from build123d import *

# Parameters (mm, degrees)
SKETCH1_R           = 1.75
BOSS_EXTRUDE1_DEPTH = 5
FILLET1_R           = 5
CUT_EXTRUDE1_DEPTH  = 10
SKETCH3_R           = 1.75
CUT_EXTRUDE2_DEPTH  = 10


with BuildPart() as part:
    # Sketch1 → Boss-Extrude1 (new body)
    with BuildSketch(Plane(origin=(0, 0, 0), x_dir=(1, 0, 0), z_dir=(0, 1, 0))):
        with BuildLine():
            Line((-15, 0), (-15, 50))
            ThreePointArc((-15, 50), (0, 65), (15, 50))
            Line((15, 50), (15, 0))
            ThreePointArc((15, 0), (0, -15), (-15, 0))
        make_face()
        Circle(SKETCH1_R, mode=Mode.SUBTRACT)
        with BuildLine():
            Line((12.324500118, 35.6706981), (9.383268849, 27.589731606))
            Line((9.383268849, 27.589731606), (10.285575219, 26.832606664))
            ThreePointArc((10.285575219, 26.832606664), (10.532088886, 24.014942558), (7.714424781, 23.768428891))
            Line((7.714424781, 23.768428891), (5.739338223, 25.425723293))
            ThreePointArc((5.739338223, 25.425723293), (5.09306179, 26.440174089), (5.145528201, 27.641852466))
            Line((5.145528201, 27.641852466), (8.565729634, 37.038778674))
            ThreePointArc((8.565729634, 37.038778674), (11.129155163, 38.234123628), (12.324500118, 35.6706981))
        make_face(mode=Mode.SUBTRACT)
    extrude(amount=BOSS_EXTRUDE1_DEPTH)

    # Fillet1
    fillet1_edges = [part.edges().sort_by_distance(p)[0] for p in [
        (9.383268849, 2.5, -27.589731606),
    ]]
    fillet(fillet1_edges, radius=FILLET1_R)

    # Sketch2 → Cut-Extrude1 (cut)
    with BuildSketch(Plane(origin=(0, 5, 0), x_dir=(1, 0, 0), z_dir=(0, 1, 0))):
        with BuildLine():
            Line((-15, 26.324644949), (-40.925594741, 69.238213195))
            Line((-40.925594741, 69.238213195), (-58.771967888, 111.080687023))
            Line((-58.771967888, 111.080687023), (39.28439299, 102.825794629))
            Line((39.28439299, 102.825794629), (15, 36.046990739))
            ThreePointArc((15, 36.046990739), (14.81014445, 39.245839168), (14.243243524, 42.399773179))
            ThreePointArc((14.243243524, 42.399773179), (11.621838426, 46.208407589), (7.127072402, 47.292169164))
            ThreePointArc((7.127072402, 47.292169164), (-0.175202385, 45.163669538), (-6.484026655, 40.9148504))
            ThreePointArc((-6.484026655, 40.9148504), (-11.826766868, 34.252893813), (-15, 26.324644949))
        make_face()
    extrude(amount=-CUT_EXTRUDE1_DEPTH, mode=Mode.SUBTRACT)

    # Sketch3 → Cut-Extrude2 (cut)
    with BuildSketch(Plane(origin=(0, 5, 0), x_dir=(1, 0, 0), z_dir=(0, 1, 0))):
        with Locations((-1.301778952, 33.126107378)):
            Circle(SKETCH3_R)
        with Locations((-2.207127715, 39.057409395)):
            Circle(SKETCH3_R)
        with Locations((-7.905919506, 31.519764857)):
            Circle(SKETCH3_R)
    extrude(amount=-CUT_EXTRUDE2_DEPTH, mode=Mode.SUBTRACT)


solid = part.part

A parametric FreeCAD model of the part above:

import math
import FreeCAD as App
import Part
import Sketcher
Q = App.Units.Quantity


def edges_at(feature, points):
    """Names of the edges that pass closest to the given points."""
    edges = feature.Shape.Edges
    near = lambda p: min(range(len(edges)), key=lambda i: edges[i].distToShape(Part.Vertex(*p))[0])
    return sorted({f"Edge{near(p) + 1}" for p in points})

doc = App.newDocument("Part")
body = doc.addObject("PartDesign::Body", "Body")

sketch1 = body.newObject("Sketcher::SketchObject", "Sketch")
sketch1.AttachmentSupport = (doc.getObject("XZ_Plane"), [""])
sketch1.MapMode = "FlatFace"
sketch1.addGeometry([
    Part.LineSegment(App.Vector(-15, -50, 0), App.Vector(-15, 0, 0)),
    Part.ArcOfCircle(Part.Circle(App.Vector(0, 0, 0), App.Vector(0, 0, 1), 15), math.radians(0), math.radians(180)),
    Part.LineSegment(App.Vector(15, 0, 0), App.Vector(15, -50, 0)),
    Part.ArcOfCircle(Part.Circle(App.Vector(0, -50, 0), App.Vector(0, 0, 1), 15), math.radians(180), math.radians(360)),
    Part.Circle(App.Vector(0, 0, 0), App.Vector(0, 0, 1), 1.8),
    Part.LineSegment(App.Vector(12.3, -35.7, 0), App.Vector(9.4, -27.6, 0)),
    Part.LineSegment(App.Vector(9.4, -27.6, 0), App.Vector(10.3, -26.8, 0)),
    Part.ArcOfCircle(Part.Circle(App.Vector(9, -25.3, 0), App.Vector(0, 0, 1), 2), math.radians(-50), math.radians(130)),
    Part.LineSegment(App.Vector(7.7, -23.8, 0), App.Vector(5.7, -25.4, 0)),
    Part.ArcOfCircle(Part.Circle(App.Vector(7, -27, 0), App.Vector(0, 0, 1), 2), math.radians(130), math.radians(200)),
    Part.LineSegment(App.Vector(5.1, -27.6, 0), App.Vector(8.6, -37, 0)),
    Part.ArcOfCircle(Part.Circle(App.Vector(10.4, -36.4, 0), App.Vector(0, 0, 1), 2), math.radians(-160), math.radians(20)),
], False)
sketch1.addConstraint([
    Sketcher.Constraint("Tangent", 0, 2, 1, 2),
    Sketcher.Constraint("Tangent", 1, 1, 2, 1),
    Sketcher.Constraint("Tangent", 2, 2, 3, 2),
    Sketcher.Constraint("Tangent", 3, 1, 0, 1),
    Sketcher.Constraint("Coincident", 5, 2, 6, 1),
    Sketcher.Constraint("Tangent", 6, 2, 7, 1),
    Sketcher.Constraint("Tangent", 7, 2, 8, 1),
    Sketcher.Constraint("Tangent", 8, 2, 9, 1),
    Sketcher.Constraint("Tangent", 9, 2, 10, 1),
    Sketcher.Constraint("Tangent", 10, 2, 11, 1),
    Sketcher.Constraint("Tangent", 11, 2, 5, 1),
    Sketcher.Constraint("Vertical", 0),
    Sketcher.Constraint("Vertical", 2),
    Sketcher.Constraint("Coincident", 1, 3, -1, 1),
    Sketcher.Constraint("Coincident", 4, 3, -1, 1),
    Sketcher.Constraint("Equal", 7, 9),
    Sketcher.Constraint("Equal", 9, 11),
    Sketcher.Constraint("Parallel", 6, 8),
    Sketcher.Constraint("Parallel", 5, 10),
    Sketcher.Constraint("Radius", 1, Q("15 mm")),
    Sketcher.Constraint("Radius", 7, Q("2 mm")),
    Sketcher.Constraint("Diameter", 4, Q("3.5 mm")),
    Sketcher.Constraint("DistanceY", 0, 1, 0, 2, Q("50 mm")),
    Sketcher.Constraint("Angle", 5, Q("110 deg")),
    Sketcher.Constraint("Angle", 6, Q("40 deg")),
    Sketcher.Constraint("Distance", 10, Q("10 mm")),
    Sketcher.Constraint("DistanceX", -1, 1, 7, 3, Q("9 mm")),
    Sketcher.Constraint("DistanceX", -1, 1, 11, 2, Q("12.3245 mm")),
    Sketcher.Constraint("DistanceY", 11, 2, -1, 1, Q("35.670698 mm")),
])
pad1 = body.newObject("PartDesign::Pad", "Pad")
pad1.Profile = sketch1
pad1.Length = 5
pad1.Reversed = True
doc.recompute()

fillet = body.newObject("PartDesign::Fillet", "Fillet")
fillet.Base = (pad1, edges_at(pad1, [(9.383, 2.5, -27.59)]))
fillet.Radius = 5

sketch2 = body.newObject("Sketcher::SketchObject", "Sketch001")
sketch2.AttachmentSupport = (doc.getObject("XZ_Plane"), [""])
sketch2.MapMode = "FlatFace"
sketch2.AttachmentOffset = App.Placement(App.Vector(0, 0, -5), App.Rotation())
sketch2.addGeometry([
    Part.LineSegment(App.Vector(-41, -69, 0), App.Vector(-15, -26, 0)),
    Part.ArcOfCircle(Part.Circle(App.Vector(13, -20, 0), App.Vector(0, 0, 1), 29), math.radians(-167), math.radians(-133)),
    Part.ArcOfCircle(Part.Circle(App.Vector(10, -23, 0), App.Vector(0, 0, 1), 25), math.radians(-133), math.radians(-97)),
    Part.ArcOfCircle(Part.Circle(App.Vector(8, -41, 0), App.Vector(0, 0, 1), 6), math.radians(-97), math.radians(-14)),
    Part.ArcOfCircle(Part.Circle(App.Vector(-12, -36, 0), App.Vector(0, 0, 1), 27), math.radians(-13.59), math.radians(0)),
    Part.LineSegment(App.Vector(15, -36, 0), App.Vector(39, -103, 0)),
    Part.LineSegment(App.Vector(39, -103, 0), App.Vector(-59, -111, 0)),
    Part.LineSegment(App.Vector(-59, -111, 0), App.Vector(-41, -69, 0)),
], False)
sketch2.addConstraint([
    Sketcher.Constraint("Coincident", 0, 2, 1, 1),
    Sketcher.Constraint("Tangent", 1, 2, 2, 1),
    Sketcher.Constraint("Tangent", 2, 2, 3, 1),
    Sketcher.Constraint("Tangent", 3, 2, 4, 1),
    Sketcher.Constraint("Coincident", 4, 2, 5, 1),
    Sketcher.Constraint("Coincident", 5, 2, 6, 1),
    Sketcher.Constraint("Coincident", 6, 2, 7, 1),
    Sketcher.Constraint("Coincident", 7, 2, 0, 1),
    Sketcher.Constraint("DistanceX", 0, 2, -1, 1, Q("15 mm")),
    Sketcher.Constraint("DistanceX", -1, 1, 4, 2, Q("15 mm")),
    Sketcher.Constraint("Radius", 3, Q("6.464849 mm")),
    Sketcher.Constraint("Radius", 1, Q("29.031005 mm")),
    Sketcher.Constraint("Radius", 2, Q("24.707804 mm")),
    Sketcher.Constraint("Radius", 4, Q("27.043393 mm")),
    Sketcher.Constraint("Distance", 7, Q("45.489402 mm")),
    Sketcher.Constraint("DistanceX", -1, 1, 3, 3, Q("7.959301 mm")),
    Sketcher.Constraint("DistanceY", 0, 2, 2, 3, Q("3.534699 mm")),
    Sketcher.Constraint("DistanceX", 1, 2, 2, 2, Q("13.611099 mm")),
    Sketcher.Constraint("Distance", 0, Q("50.136921 mm")),
    Sketcher.Constraint("DistanceY", 3, 3, -1, 1, Q("40.881111 mm")),
    Sketcher.Constraint("DistanceY", 4, 2, -1, 1, Q("36.046991 mm")),
    Sketcher.Constraint("DistanceX", 2, 2, 5, 2, Q("32.157321 mm")),
    Sketcher.Constraint("DistanceY", 5, 2, 3, 2, Q("60.426021 mm")),
    Sketcher.Constraint("DistanceX", 6, 2, 1, 2, Q("52.287941 mm")),
    Sketcher.Constraint("DistanceX", 7, 2, 1, 2, Q("34.441568 mm")),
])
pocket1 = body.newObject("PartDesign::Pocket", "Pocket")
pocket1.Profile = sketch2
pocket1.Length = 10
pocket1.Reversed = True

sketch3 = body.newObject("Sketcher::SketchObject", "Sketch002")
sketch3.AttachmentSupport = (doc.getObject("XZ_Plane"), [""])
sketch3.MapMode = "FlatFace"
sketch3.AttachmentOffset = App.Placement(App.Vector(0, 0, -5), App.Rotation())
sketch3.addGeometry([
    Part.Circle(App.Vector(-1.3, -33.1, 0), App.Vector(0, 0, 1), 1.8),
    Part.Circle(App.Vector(-2.2, -39.1, 0), App.Vector(0, 0, 1), 1.8),
    Part.Circle(App.Vector(-7.9, -31.5, 0), App.Vector(0, 0, 1), 1.8),
], False)
sketch3.addConstraint([
    Sketcher.Constraint("Equal", 0, 1),
    Sketcher.Constraint("Equal", 1, 2),
    Sketcher.Constraint("Diameter", 0, Q("3.5 mm")),
    Sketcher.Constraint("DistanceX", 0, 3, -1, 1, Q("1.301779 mm")),
    Sketcher.Constraint("DistanceY", 1, 3, -1, 1, Q("39.057409 mm")),
    Sketcher.Constraint("DistanceX", 2, 3, -1, 1, Q("7.90592 mm")),
    Sketcher.Constraint("DistanceX", 1, 3, 0, 3, Q("0.905349 mm")),
    Sketcher.Constraint("DistanceY", 0, 3, -1, 1, Q("33.126107 mm")),
    Sketcher.Constraint("DistanceY", 2, 3, -1, 1, Q("31.519765 mm")),
])
pocket2 = body.newObject("PartDesign::Pocket", "Pocket001")
pocket2.Profile = sketch3
pocket2.Length = 10
pocket2.Reversed = True

doc.recompute()
